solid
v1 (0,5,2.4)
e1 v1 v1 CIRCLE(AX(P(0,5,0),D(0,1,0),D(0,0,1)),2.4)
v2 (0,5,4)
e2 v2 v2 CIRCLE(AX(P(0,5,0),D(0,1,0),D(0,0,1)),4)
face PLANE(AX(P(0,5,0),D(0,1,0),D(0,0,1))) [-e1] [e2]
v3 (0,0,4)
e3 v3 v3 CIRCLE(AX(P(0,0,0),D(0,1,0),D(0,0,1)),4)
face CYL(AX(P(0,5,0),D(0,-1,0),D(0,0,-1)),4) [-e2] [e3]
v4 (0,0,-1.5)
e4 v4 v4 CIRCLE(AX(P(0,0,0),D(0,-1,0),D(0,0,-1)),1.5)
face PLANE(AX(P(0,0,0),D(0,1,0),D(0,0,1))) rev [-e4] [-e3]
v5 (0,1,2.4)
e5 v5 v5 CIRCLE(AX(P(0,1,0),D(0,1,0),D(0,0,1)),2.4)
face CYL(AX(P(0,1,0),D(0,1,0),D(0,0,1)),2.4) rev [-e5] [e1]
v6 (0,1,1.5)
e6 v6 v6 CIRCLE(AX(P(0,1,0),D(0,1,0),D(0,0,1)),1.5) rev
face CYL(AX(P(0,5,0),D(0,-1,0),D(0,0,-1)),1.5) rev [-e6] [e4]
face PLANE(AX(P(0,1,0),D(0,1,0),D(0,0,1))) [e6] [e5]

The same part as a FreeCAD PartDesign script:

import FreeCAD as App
import Part
import Sketcher
Q = App.Units.Quantity

doc = App.newDocument("Part")
params = doc.addObject("Spreadsheet::Sheet", "Params")
for row, (alias, value) in enumerate([
    ("sketch1_diameter", "8 mm"),
    ("pad1_length", "5 mm"),
    ("sketch2_diameter", "3 mm"),
    ("sketch3_diameter", "4.8 mm"),
    ("pocket2_length", "4 mm"),
], start=1):
    params.set(f"A{row}", alias)
    params.set(f"B{row}", "=" + value)
    params.setAlias(f"B{row}", alias)

body = doc.addObject("PartDesign::Body", "Body")

sketch1 = doc.addObject("Sketcher::SketchObject", "Sketch")
body.addObject(sketch1)
sketch1.AttachmentSupport = (doc.XZ_Plane, [""])
sketch1.MapMode = "FlatFace"
sketch1.addGeometry(Part.Circle(App.Vector(0, 0, 0), App.Vector(0, 0, 1), 4), False)
sketch1.addConstraint([
    Sketcher.Constraint("Coincident", 0, 3, -1, 1),
    Sketcher.Constraint("Diameter", 0, Q("8 mm")),
])
sketch1.setExpression("Constraints[1]", "Params.sketch1_diameter")
pad1 = doc.addObject("PartDesign::Pad", "Pad")
body.addObject(pad1)
pad1.Profile = sketch1
pad1.setExpression("Length", "Params.pad1_length")
pad1.Reversed = True

sketch2 = doc.addObject("Sketcher::SketchObject", "Sketch001")
body.addObject(sketch2)
sketch2.AttachmentSupport = (doc.XZ_Plane, [""])
sketch2.MapMode = "FlatFace"
sketch2.addGeometry(Part.Circle(App.Vector(0, 0, 0), App.Vector(0, 0, 1), 1.5), False)
sketch2.addConstraint([
    Sketcher.Constraint("Coincident", 0, 3, -1, 1),
    Sketcher.Constraint("Diameter", 0, Q("3 mm")),
])
sketch2.setExpression("Constraints[1]", "Params.sketch2_diameter")
pocket1 = doc.addObject("PartDesign::Pocket", "Pocket")
body.addObject(pocket1)
pocket1.Profile = sketch2
pocket1.Type = "ThroughAll"

sketch3 = doc.addObject("Sketcher::SketchObject", "Sketch002")
body.addObject(sketch3)
sketch3.AttachmentSupport = (doc.XZ_Plane, [""])
sketch3.MapMode = "FlatFace"
sketch3.AttachmentOffset = App.Placement(App.Vector(0, 0, -5), App.Rotation())
sketch3.addGeometry(Part.Circle(App.Vector(0, 0, 0), App.Vector(0, 0, 1), 2.4), False)
sketch3.addConstraint([
    Sketcher.Constraint("Coincident", 0, 3, -1, 1),
    Sketcher.Constraint("Diameter", 0, Q("4.8 mm")),
])
sketch3.setExpression("Constraints[1]", "Params.sketch3_diameter")
pocket2 = doc.addObject("PartDesign::Pocket", "Pocket001")
body.addObject(pocket2)
pocket2.Profile = sketch3
pocket2.setExpression("Length", "Params.pocket2_length")
pocket2.Reversed = True

doc.recompute()
